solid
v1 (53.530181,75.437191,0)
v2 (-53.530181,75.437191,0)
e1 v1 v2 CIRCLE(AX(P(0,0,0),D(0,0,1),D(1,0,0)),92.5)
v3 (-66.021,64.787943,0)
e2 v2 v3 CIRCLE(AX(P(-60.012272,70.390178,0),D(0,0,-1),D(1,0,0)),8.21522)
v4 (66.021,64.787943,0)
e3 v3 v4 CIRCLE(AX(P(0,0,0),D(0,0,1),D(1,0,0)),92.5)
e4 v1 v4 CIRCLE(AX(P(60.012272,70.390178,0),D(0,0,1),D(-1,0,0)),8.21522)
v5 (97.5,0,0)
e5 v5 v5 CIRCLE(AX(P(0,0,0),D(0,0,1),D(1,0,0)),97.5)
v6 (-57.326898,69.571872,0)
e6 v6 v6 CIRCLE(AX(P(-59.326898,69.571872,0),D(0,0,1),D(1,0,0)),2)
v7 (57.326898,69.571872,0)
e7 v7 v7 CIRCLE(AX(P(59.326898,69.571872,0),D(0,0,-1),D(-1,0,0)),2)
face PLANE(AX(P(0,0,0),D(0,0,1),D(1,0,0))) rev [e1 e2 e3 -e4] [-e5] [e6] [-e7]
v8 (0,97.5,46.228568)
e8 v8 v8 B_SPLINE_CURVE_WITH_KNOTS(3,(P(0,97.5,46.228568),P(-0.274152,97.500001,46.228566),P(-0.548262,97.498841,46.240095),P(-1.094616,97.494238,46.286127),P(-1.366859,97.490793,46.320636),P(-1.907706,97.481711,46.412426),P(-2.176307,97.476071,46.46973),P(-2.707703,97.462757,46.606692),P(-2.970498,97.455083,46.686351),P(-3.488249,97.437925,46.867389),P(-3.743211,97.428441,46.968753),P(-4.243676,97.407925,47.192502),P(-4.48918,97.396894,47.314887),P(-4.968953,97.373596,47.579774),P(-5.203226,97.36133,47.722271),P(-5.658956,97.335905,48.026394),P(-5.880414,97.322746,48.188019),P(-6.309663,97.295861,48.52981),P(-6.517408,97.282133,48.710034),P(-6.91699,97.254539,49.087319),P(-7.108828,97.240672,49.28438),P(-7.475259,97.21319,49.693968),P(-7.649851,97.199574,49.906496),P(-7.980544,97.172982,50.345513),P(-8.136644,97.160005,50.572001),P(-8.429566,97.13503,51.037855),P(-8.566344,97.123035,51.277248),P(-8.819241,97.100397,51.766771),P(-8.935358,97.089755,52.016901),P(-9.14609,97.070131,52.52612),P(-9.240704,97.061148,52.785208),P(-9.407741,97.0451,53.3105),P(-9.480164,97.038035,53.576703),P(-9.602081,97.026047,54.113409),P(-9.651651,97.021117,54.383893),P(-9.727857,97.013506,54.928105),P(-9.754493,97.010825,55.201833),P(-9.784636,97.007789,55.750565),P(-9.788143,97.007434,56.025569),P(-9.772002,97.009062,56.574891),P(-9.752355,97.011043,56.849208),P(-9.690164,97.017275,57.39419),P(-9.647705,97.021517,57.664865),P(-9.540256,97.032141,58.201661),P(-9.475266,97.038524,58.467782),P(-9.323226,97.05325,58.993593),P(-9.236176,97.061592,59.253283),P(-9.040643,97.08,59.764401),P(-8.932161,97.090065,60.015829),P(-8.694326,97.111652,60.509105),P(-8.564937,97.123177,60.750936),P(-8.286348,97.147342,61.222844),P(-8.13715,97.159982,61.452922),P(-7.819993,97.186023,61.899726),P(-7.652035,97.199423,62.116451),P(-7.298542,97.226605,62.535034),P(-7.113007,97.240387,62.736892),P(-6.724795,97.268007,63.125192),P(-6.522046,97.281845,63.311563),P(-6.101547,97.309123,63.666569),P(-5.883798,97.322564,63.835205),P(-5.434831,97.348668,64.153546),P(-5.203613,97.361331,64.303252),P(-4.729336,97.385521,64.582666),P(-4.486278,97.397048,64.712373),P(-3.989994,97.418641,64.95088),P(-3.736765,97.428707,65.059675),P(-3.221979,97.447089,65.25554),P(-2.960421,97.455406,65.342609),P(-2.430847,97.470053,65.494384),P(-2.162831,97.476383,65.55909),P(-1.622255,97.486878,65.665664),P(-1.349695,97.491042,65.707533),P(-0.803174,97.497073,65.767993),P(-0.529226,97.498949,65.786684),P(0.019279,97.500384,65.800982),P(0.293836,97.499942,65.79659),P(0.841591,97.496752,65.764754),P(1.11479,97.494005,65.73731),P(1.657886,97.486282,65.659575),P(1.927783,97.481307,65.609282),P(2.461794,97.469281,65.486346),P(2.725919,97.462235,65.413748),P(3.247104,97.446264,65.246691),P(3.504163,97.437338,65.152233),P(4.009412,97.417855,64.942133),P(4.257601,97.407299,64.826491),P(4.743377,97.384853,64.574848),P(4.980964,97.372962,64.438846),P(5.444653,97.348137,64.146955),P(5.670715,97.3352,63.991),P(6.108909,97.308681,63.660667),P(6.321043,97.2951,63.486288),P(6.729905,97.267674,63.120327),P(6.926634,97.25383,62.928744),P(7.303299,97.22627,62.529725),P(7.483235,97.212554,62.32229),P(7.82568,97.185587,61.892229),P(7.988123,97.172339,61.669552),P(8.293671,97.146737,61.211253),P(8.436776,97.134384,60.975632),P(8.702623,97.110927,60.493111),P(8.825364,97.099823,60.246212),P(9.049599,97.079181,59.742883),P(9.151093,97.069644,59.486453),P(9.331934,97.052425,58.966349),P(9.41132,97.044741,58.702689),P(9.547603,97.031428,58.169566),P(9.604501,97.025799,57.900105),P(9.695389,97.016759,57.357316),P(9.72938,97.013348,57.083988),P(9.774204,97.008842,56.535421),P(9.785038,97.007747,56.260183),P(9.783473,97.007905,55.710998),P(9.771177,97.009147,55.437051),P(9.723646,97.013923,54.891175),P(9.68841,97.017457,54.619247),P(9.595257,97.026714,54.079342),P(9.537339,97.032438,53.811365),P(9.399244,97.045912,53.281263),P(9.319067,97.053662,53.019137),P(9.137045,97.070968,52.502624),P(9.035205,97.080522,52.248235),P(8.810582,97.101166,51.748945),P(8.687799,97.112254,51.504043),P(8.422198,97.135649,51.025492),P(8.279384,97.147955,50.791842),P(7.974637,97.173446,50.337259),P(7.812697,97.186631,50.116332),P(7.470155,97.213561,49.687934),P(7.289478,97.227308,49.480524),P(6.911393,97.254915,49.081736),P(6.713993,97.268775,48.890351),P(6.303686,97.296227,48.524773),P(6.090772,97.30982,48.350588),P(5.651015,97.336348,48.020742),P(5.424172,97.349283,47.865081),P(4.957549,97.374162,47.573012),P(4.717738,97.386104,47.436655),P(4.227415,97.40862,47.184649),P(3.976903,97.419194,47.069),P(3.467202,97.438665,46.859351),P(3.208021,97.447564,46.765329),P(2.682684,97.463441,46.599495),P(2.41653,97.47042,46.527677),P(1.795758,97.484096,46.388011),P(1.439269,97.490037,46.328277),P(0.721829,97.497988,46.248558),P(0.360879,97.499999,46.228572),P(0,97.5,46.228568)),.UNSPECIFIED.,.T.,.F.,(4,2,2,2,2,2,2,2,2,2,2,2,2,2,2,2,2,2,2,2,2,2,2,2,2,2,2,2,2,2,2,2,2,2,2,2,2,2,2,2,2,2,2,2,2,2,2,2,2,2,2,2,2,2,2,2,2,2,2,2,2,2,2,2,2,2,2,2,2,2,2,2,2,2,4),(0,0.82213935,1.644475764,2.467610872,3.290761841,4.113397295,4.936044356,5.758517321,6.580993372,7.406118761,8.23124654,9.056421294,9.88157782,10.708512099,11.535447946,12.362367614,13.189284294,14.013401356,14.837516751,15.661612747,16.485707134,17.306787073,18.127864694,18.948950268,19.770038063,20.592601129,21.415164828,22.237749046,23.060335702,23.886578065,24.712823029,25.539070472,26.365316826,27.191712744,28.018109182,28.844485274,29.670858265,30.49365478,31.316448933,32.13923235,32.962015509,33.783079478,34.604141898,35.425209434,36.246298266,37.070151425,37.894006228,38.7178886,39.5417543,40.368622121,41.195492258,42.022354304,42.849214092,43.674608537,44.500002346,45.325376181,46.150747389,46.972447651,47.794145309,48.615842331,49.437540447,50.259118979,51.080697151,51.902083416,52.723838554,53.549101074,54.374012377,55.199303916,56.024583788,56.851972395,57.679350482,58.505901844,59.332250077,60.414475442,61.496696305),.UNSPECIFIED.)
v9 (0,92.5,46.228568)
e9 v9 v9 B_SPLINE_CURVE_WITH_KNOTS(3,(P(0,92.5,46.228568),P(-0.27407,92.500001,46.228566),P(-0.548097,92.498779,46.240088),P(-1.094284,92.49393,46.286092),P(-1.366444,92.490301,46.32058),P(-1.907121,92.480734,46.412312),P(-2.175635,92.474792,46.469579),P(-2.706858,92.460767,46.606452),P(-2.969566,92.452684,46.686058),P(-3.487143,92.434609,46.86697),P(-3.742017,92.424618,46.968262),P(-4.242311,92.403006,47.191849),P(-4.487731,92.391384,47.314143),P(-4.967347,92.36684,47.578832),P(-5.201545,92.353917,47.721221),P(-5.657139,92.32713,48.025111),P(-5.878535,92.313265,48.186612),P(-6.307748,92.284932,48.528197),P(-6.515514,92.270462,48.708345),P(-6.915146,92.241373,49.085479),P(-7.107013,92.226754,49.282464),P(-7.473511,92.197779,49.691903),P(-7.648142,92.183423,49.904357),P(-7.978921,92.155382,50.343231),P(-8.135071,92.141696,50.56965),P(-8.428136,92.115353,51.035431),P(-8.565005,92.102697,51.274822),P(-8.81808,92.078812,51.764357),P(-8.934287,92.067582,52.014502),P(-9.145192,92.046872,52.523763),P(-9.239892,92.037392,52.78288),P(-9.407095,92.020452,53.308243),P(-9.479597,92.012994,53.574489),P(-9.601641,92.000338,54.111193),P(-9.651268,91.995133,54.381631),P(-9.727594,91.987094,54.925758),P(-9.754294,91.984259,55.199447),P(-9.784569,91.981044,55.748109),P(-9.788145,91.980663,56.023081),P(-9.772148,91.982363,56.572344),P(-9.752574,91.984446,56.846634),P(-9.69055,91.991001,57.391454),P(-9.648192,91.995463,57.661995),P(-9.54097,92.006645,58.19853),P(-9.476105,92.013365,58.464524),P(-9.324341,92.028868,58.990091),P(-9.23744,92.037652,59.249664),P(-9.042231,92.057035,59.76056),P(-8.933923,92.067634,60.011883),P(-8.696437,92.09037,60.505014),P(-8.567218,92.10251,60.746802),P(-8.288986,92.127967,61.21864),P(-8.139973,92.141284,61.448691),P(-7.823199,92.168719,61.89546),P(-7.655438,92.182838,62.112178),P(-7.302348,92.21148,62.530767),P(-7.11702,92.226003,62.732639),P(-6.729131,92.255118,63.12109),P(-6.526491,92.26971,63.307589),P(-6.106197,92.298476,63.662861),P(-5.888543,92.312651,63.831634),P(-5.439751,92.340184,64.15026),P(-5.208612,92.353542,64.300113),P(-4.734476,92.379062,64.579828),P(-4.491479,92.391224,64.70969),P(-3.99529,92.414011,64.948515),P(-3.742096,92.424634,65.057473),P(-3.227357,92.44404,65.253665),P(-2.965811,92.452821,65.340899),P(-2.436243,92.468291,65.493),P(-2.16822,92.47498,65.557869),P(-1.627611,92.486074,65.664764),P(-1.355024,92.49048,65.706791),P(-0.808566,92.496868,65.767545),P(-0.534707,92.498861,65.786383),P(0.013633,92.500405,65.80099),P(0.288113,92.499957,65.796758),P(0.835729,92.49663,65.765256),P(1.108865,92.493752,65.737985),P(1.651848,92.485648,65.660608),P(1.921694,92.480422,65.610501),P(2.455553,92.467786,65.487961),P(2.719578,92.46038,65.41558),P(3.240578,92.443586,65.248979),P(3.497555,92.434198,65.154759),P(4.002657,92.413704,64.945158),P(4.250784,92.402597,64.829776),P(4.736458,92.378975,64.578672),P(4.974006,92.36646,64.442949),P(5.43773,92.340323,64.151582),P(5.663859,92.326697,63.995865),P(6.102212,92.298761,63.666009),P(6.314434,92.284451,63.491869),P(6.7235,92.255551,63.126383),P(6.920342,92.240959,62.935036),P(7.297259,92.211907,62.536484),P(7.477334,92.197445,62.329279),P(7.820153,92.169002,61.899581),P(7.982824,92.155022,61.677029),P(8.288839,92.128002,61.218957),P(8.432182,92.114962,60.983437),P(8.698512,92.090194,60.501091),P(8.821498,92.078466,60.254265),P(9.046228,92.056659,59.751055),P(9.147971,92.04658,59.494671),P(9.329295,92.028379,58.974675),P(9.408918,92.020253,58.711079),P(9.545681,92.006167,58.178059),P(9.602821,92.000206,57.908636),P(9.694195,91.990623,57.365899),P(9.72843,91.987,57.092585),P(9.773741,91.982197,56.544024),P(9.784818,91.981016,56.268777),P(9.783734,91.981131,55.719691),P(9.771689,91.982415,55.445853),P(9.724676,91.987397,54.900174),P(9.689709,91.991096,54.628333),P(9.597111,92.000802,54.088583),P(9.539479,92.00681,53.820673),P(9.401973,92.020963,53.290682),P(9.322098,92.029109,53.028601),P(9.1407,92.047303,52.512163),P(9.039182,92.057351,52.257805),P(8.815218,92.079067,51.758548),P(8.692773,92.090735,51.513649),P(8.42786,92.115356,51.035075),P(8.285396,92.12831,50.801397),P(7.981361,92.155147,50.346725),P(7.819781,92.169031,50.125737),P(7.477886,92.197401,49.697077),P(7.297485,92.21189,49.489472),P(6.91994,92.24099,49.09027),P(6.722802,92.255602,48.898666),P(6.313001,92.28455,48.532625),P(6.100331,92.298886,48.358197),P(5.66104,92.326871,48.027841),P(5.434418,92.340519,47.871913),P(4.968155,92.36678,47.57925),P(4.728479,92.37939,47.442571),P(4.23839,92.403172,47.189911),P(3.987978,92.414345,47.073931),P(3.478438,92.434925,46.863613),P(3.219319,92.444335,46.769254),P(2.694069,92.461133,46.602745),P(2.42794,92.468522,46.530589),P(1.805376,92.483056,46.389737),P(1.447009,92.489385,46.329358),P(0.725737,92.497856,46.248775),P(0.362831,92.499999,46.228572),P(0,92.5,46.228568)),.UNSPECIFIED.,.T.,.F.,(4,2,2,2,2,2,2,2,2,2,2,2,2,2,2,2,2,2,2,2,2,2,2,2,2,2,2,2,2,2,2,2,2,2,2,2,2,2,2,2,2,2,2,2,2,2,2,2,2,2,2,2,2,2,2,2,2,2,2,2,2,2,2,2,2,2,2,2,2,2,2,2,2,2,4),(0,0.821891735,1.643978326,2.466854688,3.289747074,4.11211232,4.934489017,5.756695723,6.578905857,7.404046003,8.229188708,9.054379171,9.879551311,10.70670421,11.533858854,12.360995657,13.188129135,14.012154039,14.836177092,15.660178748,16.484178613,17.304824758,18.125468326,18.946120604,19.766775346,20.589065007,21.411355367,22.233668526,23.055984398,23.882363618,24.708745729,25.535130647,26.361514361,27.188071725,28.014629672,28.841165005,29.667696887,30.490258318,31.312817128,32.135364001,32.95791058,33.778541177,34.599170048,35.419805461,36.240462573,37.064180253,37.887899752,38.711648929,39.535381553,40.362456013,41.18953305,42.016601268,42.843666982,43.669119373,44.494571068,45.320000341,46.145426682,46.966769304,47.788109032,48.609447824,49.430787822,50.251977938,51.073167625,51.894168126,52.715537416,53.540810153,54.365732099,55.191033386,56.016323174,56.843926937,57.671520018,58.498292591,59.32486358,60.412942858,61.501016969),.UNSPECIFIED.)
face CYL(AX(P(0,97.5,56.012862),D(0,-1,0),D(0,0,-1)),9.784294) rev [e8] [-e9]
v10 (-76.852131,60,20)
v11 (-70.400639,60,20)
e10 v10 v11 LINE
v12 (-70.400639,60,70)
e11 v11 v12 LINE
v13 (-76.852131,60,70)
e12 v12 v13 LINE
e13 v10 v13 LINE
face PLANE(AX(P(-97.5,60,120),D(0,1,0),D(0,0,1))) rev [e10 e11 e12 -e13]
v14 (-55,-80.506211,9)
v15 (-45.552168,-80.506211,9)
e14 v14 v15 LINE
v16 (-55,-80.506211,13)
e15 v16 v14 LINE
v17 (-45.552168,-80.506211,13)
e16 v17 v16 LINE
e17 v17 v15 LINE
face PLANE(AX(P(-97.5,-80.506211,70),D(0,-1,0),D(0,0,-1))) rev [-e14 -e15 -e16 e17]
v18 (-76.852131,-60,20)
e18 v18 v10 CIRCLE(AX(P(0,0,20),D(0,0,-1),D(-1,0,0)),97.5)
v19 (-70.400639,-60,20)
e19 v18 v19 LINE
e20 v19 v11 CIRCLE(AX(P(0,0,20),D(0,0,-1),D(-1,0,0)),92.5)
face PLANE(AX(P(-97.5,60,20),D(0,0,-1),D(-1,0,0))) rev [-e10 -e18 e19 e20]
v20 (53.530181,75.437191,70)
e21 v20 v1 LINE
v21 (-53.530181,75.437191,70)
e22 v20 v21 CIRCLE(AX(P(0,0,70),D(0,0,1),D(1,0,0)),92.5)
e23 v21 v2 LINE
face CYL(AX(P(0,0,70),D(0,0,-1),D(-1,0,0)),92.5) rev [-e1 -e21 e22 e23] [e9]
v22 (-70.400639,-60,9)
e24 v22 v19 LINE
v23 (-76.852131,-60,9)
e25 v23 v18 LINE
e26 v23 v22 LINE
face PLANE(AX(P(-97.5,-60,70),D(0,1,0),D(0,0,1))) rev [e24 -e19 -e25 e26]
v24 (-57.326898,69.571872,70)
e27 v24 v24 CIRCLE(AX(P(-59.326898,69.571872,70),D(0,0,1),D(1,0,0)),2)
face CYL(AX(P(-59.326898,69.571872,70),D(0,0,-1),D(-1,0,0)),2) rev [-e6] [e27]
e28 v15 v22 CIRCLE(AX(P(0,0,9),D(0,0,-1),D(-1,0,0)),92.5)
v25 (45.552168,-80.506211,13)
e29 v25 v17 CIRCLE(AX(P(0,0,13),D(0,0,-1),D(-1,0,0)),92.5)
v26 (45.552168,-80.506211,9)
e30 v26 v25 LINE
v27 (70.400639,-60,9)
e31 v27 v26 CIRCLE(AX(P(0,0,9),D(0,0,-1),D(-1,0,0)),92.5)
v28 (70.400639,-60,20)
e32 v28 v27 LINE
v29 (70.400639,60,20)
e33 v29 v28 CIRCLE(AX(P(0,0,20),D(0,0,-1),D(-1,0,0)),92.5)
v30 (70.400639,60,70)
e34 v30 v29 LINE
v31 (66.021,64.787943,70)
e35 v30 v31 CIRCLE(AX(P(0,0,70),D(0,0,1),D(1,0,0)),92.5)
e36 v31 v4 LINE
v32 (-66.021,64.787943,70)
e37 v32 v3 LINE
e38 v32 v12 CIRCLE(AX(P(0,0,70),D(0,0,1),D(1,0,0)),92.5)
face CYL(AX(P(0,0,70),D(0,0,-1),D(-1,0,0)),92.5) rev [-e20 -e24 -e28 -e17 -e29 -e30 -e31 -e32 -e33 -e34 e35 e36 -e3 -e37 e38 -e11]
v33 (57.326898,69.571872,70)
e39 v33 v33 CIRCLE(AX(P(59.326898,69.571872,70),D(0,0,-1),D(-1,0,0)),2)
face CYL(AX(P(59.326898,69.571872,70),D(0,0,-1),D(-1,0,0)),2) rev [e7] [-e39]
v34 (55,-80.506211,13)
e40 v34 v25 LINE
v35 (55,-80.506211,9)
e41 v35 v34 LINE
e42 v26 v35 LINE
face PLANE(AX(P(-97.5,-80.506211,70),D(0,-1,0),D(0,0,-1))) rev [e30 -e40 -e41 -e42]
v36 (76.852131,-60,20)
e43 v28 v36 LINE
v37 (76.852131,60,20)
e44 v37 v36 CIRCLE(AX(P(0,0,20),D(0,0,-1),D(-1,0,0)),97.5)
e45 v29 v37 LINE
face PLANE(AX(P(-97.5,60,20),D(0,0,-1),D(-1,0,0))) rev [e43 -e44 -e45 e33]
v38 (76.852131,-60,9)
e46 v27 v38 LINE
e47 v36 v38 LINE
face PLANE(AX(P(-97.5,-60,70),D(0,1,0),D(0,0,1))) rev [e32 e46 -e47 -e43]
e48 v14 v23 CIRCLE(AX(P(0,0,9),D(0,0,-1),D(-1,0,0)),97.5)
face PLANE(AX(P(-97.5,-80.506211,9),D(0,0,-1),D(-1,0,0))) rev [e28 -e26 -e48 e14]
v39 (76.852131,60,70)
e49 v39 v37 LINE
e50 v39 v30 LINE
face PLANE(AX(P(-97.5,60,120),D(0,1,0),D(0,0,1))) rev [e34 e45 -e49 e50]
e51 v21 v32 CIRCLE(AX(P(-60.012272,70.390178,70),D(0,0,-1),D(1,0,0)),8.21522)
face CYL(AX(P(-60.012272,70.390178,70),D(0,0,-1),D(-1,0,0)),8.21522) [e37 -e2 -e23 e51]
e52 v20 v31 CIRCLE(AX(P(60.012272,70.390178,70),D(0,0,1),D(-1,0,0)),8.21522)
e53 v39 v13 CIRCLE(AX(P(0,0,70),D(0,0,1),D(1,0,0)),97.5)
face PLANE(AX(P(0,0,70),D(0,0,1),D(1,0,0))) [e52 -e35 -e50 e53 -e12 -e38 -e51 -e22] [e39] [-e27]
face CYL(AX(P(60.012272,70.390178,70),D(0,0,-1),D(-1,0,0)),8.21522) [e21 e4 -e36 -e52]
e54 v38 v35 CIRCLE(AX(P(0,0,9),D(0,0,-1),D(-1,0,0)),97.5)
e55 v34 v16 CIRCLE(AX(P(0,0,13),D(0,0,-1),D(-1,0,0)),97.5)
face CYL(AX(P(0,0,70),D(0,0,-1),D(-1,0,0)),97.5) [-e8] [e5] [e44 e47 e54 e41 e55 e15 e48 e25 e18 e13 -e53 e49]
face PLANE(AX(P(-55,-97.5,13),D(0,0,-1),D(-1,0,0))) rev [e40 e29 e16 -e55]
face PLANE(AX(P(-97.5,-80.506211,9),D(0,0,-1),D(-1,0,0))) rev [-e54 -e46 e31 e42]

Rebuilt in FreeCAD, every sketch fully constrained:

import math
import FreeCAD as App
import Part
import Sketcher

V = App.Vector


def add_polygon(sketch, points):
    """Adds a closed chain of lines whose ends are joined by coincident constraints."""
    first, n = sketch.GeometryCount, len(points)
    for a, b in zip(points, points[1:] + points[:1]):
        sketch.addGeometry(Part.LineSegment(App.Vector(*a, 0), App.Vector(*b, 0)), False)
    for i in range(n):
        sketch.addConstraint(Sketcher.Constraint("Coincident", first + i, 2, first + (i + 1) % n, 1))

doc = App.newDocument("Part")
params = doc.addObject("Spreadsheet::Sheet", "Params")
for row, (alias, value) in enumerate([
    ("sketch1_diameter", "195 mm"),
    ("sketch1_diameter2", "185 mm"),
    ("pad1_length", "70 mm"),
    ("sketch2_width", "110 mm"),
    ("sketch2_height", "114 mm"),
    ("sketch3_width", "120 mm"),
    ("sketch3_height", "100 mm"),
    ("sketch4_height", "61 mm"),
    ("sketch6_radius", "92.5 mm"),
    ("pad2_length", "70 mm"),
    ("sketch7_diameter", "4 mm"),
], start=1):
    params.set(f"A{row}", alias)
    params.set(f"B{row}", "=" + value)
    params.setAlias(f"B{row}", alias)

body = doc.addObject("PartDesign::Body", "Body")

sketch1 = body.newObject("Sketcher::SketchObject", "Sketch")
sketch1.AttachmentSupport = (doc.getObject("XY_Plane"), [""])
sketch1.MapMode = "FlatFace"
sketch1.addGeometry([
    Part.Circle(V(0, 0, 0), V(0, 0, 1), 98),
    Part.Circle(V(0, 0, 0), V(0, 0, 1), 92),
], False)
sketch1.addConstraint([
    Sketcher.Constraint("Coincident", 0, 3, -1, 1),
    Sketcher.Constraint("Coincident", 1, 3, -1, 1),
    Sketcher.Constraint("Diameter", 0, 195.0),
    Sketcher.Constraint("Diameter", 1, 185.0),
])
sketch1.setExpression("Constraints[2]", "Params.sketch1_diameter")
sketch1.setExpression("Constraints[3]", "Params.sketch1_diameter2")
pad1 = body.newObject("PartDesign::Pad", "Pad")
pad1.Profile = sketch1
pad1.setExpression("Length", "Params.pad1_length")

sketch2 = body.newObject("Sketcher::SketchObject", "Sketch001")
sketch2.AttachmentSupport = (doc.getObject("XZ_Plane"), [""])
sketch2.MapMode = "FlatFace"
add_polygon(sketch2, [(-55, 13), (-55, 127), (55, 127), (55, 13)])
sketch2.addConstraint([
    Sketcher.Constraint("Vertical", 0),
    Sketcher.Constraint("Horizontal", 1),
    Sketcher.Constraint("Vertical", 2),
    Sketcher.Constraint("Horizontal", 3),
    Sketcher.Constraint("DistanceX", 1, 1, 1, 2, 110.0),
    Sketcher.Constraint("DistanceY", 0, 1, 0, 2, 114.0),
    Sketcher.Constraint("DistanceX", 0, 2, -1, 1, 55.0),
    Sketcher.Constraint("DistanceY", -1, 1, 0, 2, 127.0),
])
sketch2.setExpression("Constraints[8]", "Params.sketch2_width")
sketch2.setExpression("Constraints[9]", "Params.sketch2_height")
pocket1 = body.newObject("PartDesign::Pocket", "Pocket")
pocket1.Profile = sketch2
pocket1.Type = "ThroughAll"
pocket1.Reversed = True

sketch3 = body.newObject("Sketcher::SketchObject", "Sketch002")
sketch3.AttachmentSupport = (doc.getObject("YZ_Plane"), [""])
sketch3.MapMode = "FlatFace"
add_polygon(sketch3, [(60, 120), (-60, 120), (-60, 20), (60, 20)])
sketch3.addConstraint([
    Sketcher.Constraint("Horizontal", 0),
    Sketcher.Constraint("Vertical", 1),
    Sketcher.Constraint("Horizontal", 2),
    Sketcher.Constraint("Vertical", 3),
    Sketcher.Constraint("DistanceX", 0, 2, 0, 1, 120.0),
    Sketcher.Constraint("DistanceY", 1, 2, 1, 1, 100.0),
    Sketcher.Constraint("DistanceX", 0, 2, -1, 1, 60.0),
    Sketcher.Constraint("DistanceY", -1, 1, 0, 2, 120.0),
])
sketch3.setExpression("Constraints[8]", "Params.sketch3_width")
sketch3.setExpression("Constraints[9]", "Params.sketch3_height")
pocket2 = body.newObject("PartDesign::Pocket", "Pocket001")
pocket2.Profile = sketch3
pocket2.Type = "ThroughAll"
pocket2.Midplane = True

sketch4 = body.newObject("Sketcher::SketchObject", "Sketch003")
sketch4.AttachmentSupport = (doc.getObject("YZ_Plane"), [""])
sketch4.MapMode = "FlatFace"
add_polygon(sketch4, [(-60, 70), (-81, 70), (-81, 9), (-60, 9)])
sketch4.addConstraint([
    Sketcher.Constraint("Horizontal", 0),
    Sketcher.Constraint("Vertical", 1),
    Sketcher.Constraint("Horizontal", 2),
    Sketcher.Constraint("Vertical", 3),
    Sketcher.Constraint("DistanceY", 1, 2, 1, 1, 61.0),
    Sketcher.Constraint("DistanceY", -1, 1, 0, 2, 70.0),
    Sketcher.Constraint("DistanceX", 2, 2, -1, 1, 60.0),
    Sketcher.Constraint("DistanceX", 0, 2, 0, 1, 20.506211),
])
sketch4.setExpression("Constraints[8]", "Params.sketch4_height")
pocket3 = body.newObject("PartDesign::Pocket", "Pocket002")
pocket3.Profile = sketch4
pocket3.Type = "ThroughAll"
pocket3.Midplane = True

sketch5 = body.newObject("Sketcher::SketchObject", "Sketch004")
sketch5.AttachmentSupport = (doc.getObject("XZ_Plane"), [""])
sketch5.MapMode = "FlatFace"
sketch5.addGeometry(Part.Circle(V(0, 56, 0), V(0, 0, 1), 10), False)
sketch5.addConstraint([
    Sketcher.Constraint("PointOnObject", 0, 3, -2),
    Sketcher.Constraint("Diameter", 0, 19.568587),
    Sketcher.Constraint("DistanceY", -1, 1, 0, 3, 56.012862),
])
pocket4 = body.newObject("PartDesign::Pocket", "Pocket003")
pocket4.Profile = sketch5
pocket4.Type = "ThroughAll"

sketch6 = body.newObject("Sketcher::SketchObject", "Sketch005")
sketch6.AttachmentSupport = (doc.getObject("XY_Plane"), [""])
sketch6.MapMode = "FlatFace"
sketch6.addGeometry([
    Part.ArcOfCircle(Part.Circle(V(60, 70, 0), V(0, 0, 1), 8), math.radians(142), math.radians(317)),
    Part.ArcOfCircle(Part.Circle(V(0, 0, 0), V(0, 0, 1), 93), math.radians(44.46), math.radians(54.64)),
], False)
sketch6.addConstraint([
    Sketcher.Constraint("Coincident", 0, 1, 1, 2),
    Sketcher.Constraint("Coincident", 1, 1, 0, 2),
    Sketcher.Constraint("Coincident", 1, 3, -1, 1),
    Sketcher.Constraint("Radius", 1, 92.5),
    Sketcher.Constraint("Radius", 0, 8.21522),
    Sketcher.Constraint("DistanceX", -1, 1, 1, 1, 66.021),
    Sketcher.Constraint("DistanceY", -1, 1, 0, 3, 70.390178),
])
sketch6.setExpression("Constraints[3]", "Params.sketch6_radius")
pad2 = body.newObject("PartDesign::Pad", "Pad001")
pad2.Profile = sketch6
pad2.setExpression("Length", "Params.pad2_length")

sketch7 = body.newObject("Sketcher::SketchObject", "Sketch006")
sketch7.AttachmentSupport = (doc.getObject("XY_Plane"), [""])
sketch7.MapMode = "FlatFace"
sketch7.addGeometry(Part.Circle(V(59.3, 69.6, 0), V(0, 0, 1), 2), False)
sketch7.addConstraint([
    Sketcher.Constraint("Diameter", 0, 4.0),
    Sketcher.Constraint("DistanceY", -1, 1, 0, 3, 69.571872),
    Sketcher.Constraint("DistanceX", -1, 1, 0, 3, 59.326898),
])
sketch7.setExpression("Constraints[0]", "Params.sketch7_diameter")
pocket5 = body.newObject("PartDesign::Pocket", "Pocket004")
pocket5.Profile = sketch7
pocket5.Type = "ThroughAll"
pocket5.Reversed = True
doc.recompute()

mirrored = body.newObject("PartDesign::Mirrored", "Mirrored")
mirrored.Originals = [pad2, pocket5]
mirrored.MirrorPlane = (doc.getObject("YZ_Plane"), [""])
body.Tip = mirrored

doc.recompute()
